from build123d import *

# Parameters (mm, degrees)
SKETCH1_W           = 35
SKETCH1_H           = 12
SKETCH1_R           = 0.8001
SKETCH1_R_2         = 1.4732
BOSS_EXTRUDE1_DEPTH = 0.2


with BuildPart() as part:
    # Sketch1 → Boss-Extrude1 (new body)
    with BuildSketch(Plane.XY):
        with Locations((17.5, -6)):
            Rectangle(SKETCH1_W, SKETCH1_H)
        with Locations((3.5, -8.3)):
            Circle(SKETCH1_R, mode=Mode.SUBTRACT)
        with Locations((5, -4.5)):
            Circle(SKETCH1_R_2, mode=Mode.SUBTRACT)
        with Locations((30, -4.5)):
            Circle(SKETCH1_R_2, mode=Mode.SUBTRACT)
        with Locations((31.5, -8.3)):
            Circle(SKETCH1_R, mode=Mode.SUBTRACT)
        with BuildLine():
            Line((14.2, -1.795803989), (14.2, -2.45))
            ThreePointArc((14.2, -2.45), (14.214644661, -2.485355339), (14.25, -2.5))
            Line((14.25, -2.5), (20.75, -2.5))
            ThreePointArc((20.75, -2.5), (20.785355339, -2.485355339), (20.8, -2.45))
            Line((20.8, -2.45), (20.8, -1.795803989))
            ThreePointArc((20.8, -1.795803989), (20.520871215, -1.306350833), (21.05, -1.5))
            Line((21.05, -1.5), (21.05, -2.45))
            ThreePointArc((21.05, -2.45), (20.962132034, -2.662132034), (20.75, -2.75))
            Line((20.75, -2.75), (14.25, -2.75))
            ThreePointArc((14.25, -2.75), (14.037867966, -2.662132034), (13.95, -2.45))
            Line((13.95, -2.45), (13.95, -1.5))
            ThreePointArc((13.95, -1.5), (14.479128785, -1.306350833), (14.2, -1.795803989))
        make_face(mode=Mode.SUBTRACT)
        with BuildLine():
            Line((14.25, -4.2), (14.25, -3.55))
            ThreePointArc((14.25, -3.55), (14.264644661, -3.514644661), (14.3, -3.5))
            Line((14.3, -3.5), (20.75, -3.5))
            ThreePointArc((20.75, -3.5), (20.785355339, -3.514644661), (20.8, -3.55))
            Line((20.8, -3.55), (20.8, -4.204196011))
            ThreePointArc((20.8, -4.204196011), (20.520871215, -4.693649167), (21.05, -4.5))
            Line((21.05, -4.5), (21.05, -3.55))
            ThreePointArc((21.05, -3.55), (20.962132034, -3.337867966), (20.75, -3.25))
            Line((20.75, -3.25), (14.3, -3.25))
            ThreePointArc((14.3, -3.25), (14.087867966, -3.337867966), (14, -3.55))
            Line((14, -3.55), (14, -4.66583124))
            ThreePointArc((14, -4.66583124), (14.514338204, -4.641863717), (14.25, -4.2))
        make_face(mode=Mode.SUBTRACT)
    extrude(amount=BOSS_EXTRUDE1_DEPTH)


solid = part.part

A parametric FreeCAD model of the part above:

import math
import FreeCAD as App
import Part
import Sketcher

V = App.Vector


def add_polygon(sketch, points):
    """Adds a closed chain of lines whose ends are joined by coincident constraints."""
    first, n = sketch.GeometryCount, len(points)
    for a, b in zip(points, points[1:] + points[:1]):
        sketch.addGeometry(Part.LineSegment(App.Vector(*a, 0), App.Vector(*b, 0)), False)
    for i in range(n):
        sketch.addConstraint(Sketcher.Constraint("Coincident", first + i, 2, first + (i + 1) % n, 1))

doc = App.newDocument("Part")
body = doc.addObject("PartDesign::Body", "Body")

sketch1 = body.newObject("Sketcher::SketchObject", "Sketch")
sketch1.AttachmentSupport = (doc.getObject("XY_Plane"), [""])
sketch1.MapMode = "FlatFace"
add_polygon(sketch1, [(0, 0), (0, -12), (35, -12), (35, 0)])
sketch1.addGeometry(Part.Circle(V(3.5, -8.3, 0), V(0, 0, 1), 0.8), False)
sketch1.addGeometry(Part.Circle(V(31.5, -8.3, 0), V(0, 0, 1), 0.8), False)
sketch1.addGeometry(Part.Circle(V(5, -4.5, 0), V(0, 0, 1), 1.47), False)
sketch1.addGeometry(Part.LineSegment(V(14.25, -3.55, 0), V(14.25, -4.2, 0)), False)
sketch1.addGeometry(Part.ArcOfCircle(Part.Circle(V(14.25, -4.5, 0), V(0, 0, 1), 0.3), math.radians(-146), math.radians(90)), False)
sketch1.addGeometry(Part.LineSegment(V(14, -4.67, 0), V(14, -3.55, 0)), False)
sketch1.addGeometry(Part.ArcOfCircle(Part.Circle(V(14.3, -3.55, 0), V(0, 0, 1), 0.3), math.radians(90), math.radians(180)), False)
sketch1.addGeometry(Part.LineSegment(V(14.3, -3.25, 0), V(20.75, -3.25, 0)), False)
sketch1.addGeometry(Part.ArcOfCircle(Part.Circle(V(20.75, -3.55, 0), V(0, 0, 1), 0.3), math.radians(0), math.radians(90)), False)
sketch1.addGeometry(Part.LineSegment(V(21.05, -3.55, 0), V(21.05, -4.5, 0)), False)
sketch1.addGeometry(Part.ArcOfCircle(Part.Circle(V(20.75, -4.5, 0), V(0, 0, 1), 0.3), math.radians(80), math.radians(360)), False)
sketch1.addGeometry(Part.LineSegment(V(20.8, -4.2, 0), V(20.8, -3.55, 0)), False)
sketch1.addGeometry(Part.ArcOfCircle(Part.Circle(V(20.75, -3.55, 0), V(0, 0, 1), 0.05), math.radians(0), math.radians(90)), False)
sketch1.addGeometry(Part.LineSegment(V(20.75, -3.5, 0), V(14.3, -3.5, 0)), False)
sketch1.addGeometry(Part.ArcOfCircle(Part.Circle(V(14.3, -3.55, 0), V(0, 0, 1), 0.05), math.radians(90), math.radians(180)), False)
sketch1.addGeometry(Part.Circle(V(30, -4.5, 0), V(0, 0, 1), 1.47), False)
sketch1.addGeometry(Part.ArcOfCircle(Part.Circle(V(14.25, -1.5, 0), V(0, 0, 1), 0.3), math.radians(-100), math.radians(180)), False)
sketch1.addGeometry(Part.LineSegment(V(14.2, -1.8, 0), V(14.2, -2.45, 0)), False)
sketch1.addGeometry(Part.ArcOfCircle(Part.Circle(V(14.25, -2.45, 0), V(0, 0, 1), 0.05), math.radians(180), math.radians(270)), False)
sketch1.addGeometry(Part.LineSegment(V(14.25, -2.5, 0), V(20.75, -2.5, 0)), False)
sketch1.addGeometry(Part.ArcOfCircle(Part.Circle(V(20.75, -2.45, 0), V(0, 0, 1), 0.05), math.radians(-90), math.radians(0)), False)
sketch1.addGeometry(Part.LineSegment(V(20.8, -2.45, 0), V(20.8, -1.8, 0)), False)
sketch1.addGeometry(Part.ArcOfCircle(Part.Circle(V(20.75, -1.5, 0), V(0, 0, 1), 0.3), math.radians(0), math.radians(280)), False)
sketch1.addGeometry(Part.LineSegment(V(21.05, -1.5, 0), V(21.05, -2.45, 0)), False)
sketch1.addGeometry(Part.ArcOfCircle(Part.Circle(V(20.75, -2.45, 0), V(0, 0, 1), 0.3), math.radians(-90), math.radians(0)), False)
sketch1.addGeometry(Part.LineSegment(V(20.75, -2.75, 0), V(14.25, -2.75, 0)), False)
sketch1.addGeometry(Part.ArcOfCircle(Part.Circle(V(14.25, -2.45, 0), V(0, 0, 1), 0.3), math.radians(-180), math.radians(-90)), False)
sketch1.addGeometry(Part.LineSegment(V(13.95, -2.45, 0), V(13.95, -1.5, 0)), False)
sketch1.addConstraint([
    Sketcher.Constraint("Coincident", 7, 2, 8, 2),
    Sketcher.Constraint("Coincident", 8, 1, 9, 1),
    Sketcher.Constraint("Tangent", 9, 2, 10, 2),
    Sketcher.Constraint("Tangent", 10, 1, 11, 1),
    Sketcher.Constraint("Tangent", 11, 2, 12, 2),
    Sketcher.Constraint("Tangent", 12, 1, 13, 1),
    Sketcher.Constraint("Tangent", 13, 2, 14, 2),
    Sketcher.Constraint("Coincident", 14, 1, 15, 1),
    Sketcher.Constraint("Tangent", 15, 2, 16, 1),
    Sketcher.Constraint("Tangent", 16, 2, 17, 1),
    Sketcher.Constraint("Tangent", 17, 2, 18, 1),
    Sketcher.Constraint("Tangent", 18, 2, 7, 1),
    Sketcher.Constraint("Coincident", 20, 1, 21, 1),
    Sketcher.Constraint("Tangent", 21, 2, 22, 1),
    Sketcher.Constraint("Tangent", 22, 2, 23, 1),
    Sketcher.Constraint("Tangent", 23, 2, 24, 1),
    Sketcher.Constraint("Tangent", 24, 2, 25, 1),
    Sketcher.Constraint("Coincident", 25, 2, 26, 2),
    Sketcher.Constraint("Tangent", 26, 1, 27, 1),
    Sketcher.Constraint("Tangent", 27, 2, 28, 2),
    Sketcher.Constraint("Tangent", 28, 1, 29, 1),
    Sketcher.Constraint("Tangent", 29, 2, 30, 2),
    Sketcher.Constraint("Tangent", 30, 1, 31, 1),
    Sketcher.Constraint("Tangent", 31, 2, 20, 2),
    Sketcher.Constraint("Vertical", 0),
    Sketcher.Constraint("Horizontal", 1),
    Sketcher.Constraint("Vertical", 2),
    Sketcher.Constraint("Horizontal", 3),
    Sketcher.Constraint("Vertical", 7),
    Sketcher.Constraint("Vertical", 9),
    Sketcher.Constraint("Horizontal", 11),
    Sketcher.Constraint("Vertical", 13),
    Sketcher.Constraint("Vertical", 15),
    Sketcher.Constraint("Horizontal", 17),
    Sketcher.Constraint("Vertical", 21),
    Sketcher.Constraint("Horizontal", 23),
    Sketcher.Constraint("Vertical", 25),
    Sketcher.Constraint("Vertical", 27),
    Sketcher.Constraint("Horizontal", 29),
    Sketcher.Constraint("Vertical", 31),
    Sketcher.Constraint("Coincident", 3, 2, -1, 1),
    Sketcher.Constraint("Coincident", 16, 3, 12, 3),
    Sketcher.Constraint("Coincident", 18, 3, 10, 3),
    Sketcher.Constraint("Coincident", 28, 3, 24, 3),
    Sketcher.Constraint("Coincident", 30, 3, 22, 3),
    Sketcher.Constraint("Equal", 4, 5),
    Sketcher.Constraint("Equal", 8, 10),
    Sketcher.Constraint("Equal", 10, 12),
    Sketcher.Constraint("Equal", 12, 14),
    Sketcher.Constraint("Equal", 6, 19),
    Sketcher.Constraint("Equal", 14, 20),
    Sketcher.Constraint("Equal", 18, 22),
    Sketcher.Constraint("Equal", 22, 24),
    Sketcher.Constraint("Equal", 20, 26),
    Sketcher.Constraint("Equal", 26, 28),
    Sketcher.Constraint("Horizontal", 4, 3, 5, 3),
    Sketcher.Constraint("Horizontal", 6, 3, 8, 3),
    Sketcher.Constraint("Horizontal", 8, 3, 14, 3),
    Sketcher.Constraint("Horizontal", 14, 3, 19, 3),
    Sketcher.Constraint("Horizontal", 20, 3, 26, 3),
    Sketcher.Constraint("Vertical", 8, 3, 20, 3),
    Sketcher.Constraint("Vertical", 16, 3, 24, 3),
    Sketcher.Constraint("Vertical", 30, 3, 7, 2),
    Sketcher.Constraint("Equal", 15, 21),
    Sketcher.Constraint("Radius", 8, 0.3),
    Sketcher.Constraint("DistanceX", 1, 1, 1, 2, 35.0),
    Sketcher.Constraint("DistanceY", 0, 2, 0, 1, 12.0),
    Sketcher.Constraint("Radius", 16, 0.05),
    Sketcher.Constraint("DistanceX", 23, 1, 23, 2, 6.5),
    Sketcher.Constraint("DistanceX", -1, 1, 6, 3, 5.0),
    Sketcher.Constraint("DistanceX", -1, 1, 19, 3, 30.0),
    Sketcher.Constraint("DistanceX", -1, 1, 8, 1, 14.0),
    Sketcher.Constraint("DistanceX", 4, 3, 5, 3, 28.0),
    Sketcher.Constraint("DistanceY", 8, 3, 20, 3, 3.0),
    Sketcher.Constraint("DistanceY", 23, 2, 26, 3, 1.0),
    Sketcher.Constraint("Diameter", 4, 1.6002),
    Sketcher.Constraint("Diameter", 6, 2.9464),
    Sketcher.Constraint("DistanceX", -1, 1, 4, 3, 3.5),
    Sketcher.Constraint("DistanceY", 4, 3, -1, 1, 8.3),
    Sketcher.Constraint("DistanceY", 6, 3, -1, 1, 4.5),
])
pad1 = body.newObject("PartDesign::Pad", "Pad")
pad1.Profile = sketch1
pad1.Length = 0.2

doc.recompute()
